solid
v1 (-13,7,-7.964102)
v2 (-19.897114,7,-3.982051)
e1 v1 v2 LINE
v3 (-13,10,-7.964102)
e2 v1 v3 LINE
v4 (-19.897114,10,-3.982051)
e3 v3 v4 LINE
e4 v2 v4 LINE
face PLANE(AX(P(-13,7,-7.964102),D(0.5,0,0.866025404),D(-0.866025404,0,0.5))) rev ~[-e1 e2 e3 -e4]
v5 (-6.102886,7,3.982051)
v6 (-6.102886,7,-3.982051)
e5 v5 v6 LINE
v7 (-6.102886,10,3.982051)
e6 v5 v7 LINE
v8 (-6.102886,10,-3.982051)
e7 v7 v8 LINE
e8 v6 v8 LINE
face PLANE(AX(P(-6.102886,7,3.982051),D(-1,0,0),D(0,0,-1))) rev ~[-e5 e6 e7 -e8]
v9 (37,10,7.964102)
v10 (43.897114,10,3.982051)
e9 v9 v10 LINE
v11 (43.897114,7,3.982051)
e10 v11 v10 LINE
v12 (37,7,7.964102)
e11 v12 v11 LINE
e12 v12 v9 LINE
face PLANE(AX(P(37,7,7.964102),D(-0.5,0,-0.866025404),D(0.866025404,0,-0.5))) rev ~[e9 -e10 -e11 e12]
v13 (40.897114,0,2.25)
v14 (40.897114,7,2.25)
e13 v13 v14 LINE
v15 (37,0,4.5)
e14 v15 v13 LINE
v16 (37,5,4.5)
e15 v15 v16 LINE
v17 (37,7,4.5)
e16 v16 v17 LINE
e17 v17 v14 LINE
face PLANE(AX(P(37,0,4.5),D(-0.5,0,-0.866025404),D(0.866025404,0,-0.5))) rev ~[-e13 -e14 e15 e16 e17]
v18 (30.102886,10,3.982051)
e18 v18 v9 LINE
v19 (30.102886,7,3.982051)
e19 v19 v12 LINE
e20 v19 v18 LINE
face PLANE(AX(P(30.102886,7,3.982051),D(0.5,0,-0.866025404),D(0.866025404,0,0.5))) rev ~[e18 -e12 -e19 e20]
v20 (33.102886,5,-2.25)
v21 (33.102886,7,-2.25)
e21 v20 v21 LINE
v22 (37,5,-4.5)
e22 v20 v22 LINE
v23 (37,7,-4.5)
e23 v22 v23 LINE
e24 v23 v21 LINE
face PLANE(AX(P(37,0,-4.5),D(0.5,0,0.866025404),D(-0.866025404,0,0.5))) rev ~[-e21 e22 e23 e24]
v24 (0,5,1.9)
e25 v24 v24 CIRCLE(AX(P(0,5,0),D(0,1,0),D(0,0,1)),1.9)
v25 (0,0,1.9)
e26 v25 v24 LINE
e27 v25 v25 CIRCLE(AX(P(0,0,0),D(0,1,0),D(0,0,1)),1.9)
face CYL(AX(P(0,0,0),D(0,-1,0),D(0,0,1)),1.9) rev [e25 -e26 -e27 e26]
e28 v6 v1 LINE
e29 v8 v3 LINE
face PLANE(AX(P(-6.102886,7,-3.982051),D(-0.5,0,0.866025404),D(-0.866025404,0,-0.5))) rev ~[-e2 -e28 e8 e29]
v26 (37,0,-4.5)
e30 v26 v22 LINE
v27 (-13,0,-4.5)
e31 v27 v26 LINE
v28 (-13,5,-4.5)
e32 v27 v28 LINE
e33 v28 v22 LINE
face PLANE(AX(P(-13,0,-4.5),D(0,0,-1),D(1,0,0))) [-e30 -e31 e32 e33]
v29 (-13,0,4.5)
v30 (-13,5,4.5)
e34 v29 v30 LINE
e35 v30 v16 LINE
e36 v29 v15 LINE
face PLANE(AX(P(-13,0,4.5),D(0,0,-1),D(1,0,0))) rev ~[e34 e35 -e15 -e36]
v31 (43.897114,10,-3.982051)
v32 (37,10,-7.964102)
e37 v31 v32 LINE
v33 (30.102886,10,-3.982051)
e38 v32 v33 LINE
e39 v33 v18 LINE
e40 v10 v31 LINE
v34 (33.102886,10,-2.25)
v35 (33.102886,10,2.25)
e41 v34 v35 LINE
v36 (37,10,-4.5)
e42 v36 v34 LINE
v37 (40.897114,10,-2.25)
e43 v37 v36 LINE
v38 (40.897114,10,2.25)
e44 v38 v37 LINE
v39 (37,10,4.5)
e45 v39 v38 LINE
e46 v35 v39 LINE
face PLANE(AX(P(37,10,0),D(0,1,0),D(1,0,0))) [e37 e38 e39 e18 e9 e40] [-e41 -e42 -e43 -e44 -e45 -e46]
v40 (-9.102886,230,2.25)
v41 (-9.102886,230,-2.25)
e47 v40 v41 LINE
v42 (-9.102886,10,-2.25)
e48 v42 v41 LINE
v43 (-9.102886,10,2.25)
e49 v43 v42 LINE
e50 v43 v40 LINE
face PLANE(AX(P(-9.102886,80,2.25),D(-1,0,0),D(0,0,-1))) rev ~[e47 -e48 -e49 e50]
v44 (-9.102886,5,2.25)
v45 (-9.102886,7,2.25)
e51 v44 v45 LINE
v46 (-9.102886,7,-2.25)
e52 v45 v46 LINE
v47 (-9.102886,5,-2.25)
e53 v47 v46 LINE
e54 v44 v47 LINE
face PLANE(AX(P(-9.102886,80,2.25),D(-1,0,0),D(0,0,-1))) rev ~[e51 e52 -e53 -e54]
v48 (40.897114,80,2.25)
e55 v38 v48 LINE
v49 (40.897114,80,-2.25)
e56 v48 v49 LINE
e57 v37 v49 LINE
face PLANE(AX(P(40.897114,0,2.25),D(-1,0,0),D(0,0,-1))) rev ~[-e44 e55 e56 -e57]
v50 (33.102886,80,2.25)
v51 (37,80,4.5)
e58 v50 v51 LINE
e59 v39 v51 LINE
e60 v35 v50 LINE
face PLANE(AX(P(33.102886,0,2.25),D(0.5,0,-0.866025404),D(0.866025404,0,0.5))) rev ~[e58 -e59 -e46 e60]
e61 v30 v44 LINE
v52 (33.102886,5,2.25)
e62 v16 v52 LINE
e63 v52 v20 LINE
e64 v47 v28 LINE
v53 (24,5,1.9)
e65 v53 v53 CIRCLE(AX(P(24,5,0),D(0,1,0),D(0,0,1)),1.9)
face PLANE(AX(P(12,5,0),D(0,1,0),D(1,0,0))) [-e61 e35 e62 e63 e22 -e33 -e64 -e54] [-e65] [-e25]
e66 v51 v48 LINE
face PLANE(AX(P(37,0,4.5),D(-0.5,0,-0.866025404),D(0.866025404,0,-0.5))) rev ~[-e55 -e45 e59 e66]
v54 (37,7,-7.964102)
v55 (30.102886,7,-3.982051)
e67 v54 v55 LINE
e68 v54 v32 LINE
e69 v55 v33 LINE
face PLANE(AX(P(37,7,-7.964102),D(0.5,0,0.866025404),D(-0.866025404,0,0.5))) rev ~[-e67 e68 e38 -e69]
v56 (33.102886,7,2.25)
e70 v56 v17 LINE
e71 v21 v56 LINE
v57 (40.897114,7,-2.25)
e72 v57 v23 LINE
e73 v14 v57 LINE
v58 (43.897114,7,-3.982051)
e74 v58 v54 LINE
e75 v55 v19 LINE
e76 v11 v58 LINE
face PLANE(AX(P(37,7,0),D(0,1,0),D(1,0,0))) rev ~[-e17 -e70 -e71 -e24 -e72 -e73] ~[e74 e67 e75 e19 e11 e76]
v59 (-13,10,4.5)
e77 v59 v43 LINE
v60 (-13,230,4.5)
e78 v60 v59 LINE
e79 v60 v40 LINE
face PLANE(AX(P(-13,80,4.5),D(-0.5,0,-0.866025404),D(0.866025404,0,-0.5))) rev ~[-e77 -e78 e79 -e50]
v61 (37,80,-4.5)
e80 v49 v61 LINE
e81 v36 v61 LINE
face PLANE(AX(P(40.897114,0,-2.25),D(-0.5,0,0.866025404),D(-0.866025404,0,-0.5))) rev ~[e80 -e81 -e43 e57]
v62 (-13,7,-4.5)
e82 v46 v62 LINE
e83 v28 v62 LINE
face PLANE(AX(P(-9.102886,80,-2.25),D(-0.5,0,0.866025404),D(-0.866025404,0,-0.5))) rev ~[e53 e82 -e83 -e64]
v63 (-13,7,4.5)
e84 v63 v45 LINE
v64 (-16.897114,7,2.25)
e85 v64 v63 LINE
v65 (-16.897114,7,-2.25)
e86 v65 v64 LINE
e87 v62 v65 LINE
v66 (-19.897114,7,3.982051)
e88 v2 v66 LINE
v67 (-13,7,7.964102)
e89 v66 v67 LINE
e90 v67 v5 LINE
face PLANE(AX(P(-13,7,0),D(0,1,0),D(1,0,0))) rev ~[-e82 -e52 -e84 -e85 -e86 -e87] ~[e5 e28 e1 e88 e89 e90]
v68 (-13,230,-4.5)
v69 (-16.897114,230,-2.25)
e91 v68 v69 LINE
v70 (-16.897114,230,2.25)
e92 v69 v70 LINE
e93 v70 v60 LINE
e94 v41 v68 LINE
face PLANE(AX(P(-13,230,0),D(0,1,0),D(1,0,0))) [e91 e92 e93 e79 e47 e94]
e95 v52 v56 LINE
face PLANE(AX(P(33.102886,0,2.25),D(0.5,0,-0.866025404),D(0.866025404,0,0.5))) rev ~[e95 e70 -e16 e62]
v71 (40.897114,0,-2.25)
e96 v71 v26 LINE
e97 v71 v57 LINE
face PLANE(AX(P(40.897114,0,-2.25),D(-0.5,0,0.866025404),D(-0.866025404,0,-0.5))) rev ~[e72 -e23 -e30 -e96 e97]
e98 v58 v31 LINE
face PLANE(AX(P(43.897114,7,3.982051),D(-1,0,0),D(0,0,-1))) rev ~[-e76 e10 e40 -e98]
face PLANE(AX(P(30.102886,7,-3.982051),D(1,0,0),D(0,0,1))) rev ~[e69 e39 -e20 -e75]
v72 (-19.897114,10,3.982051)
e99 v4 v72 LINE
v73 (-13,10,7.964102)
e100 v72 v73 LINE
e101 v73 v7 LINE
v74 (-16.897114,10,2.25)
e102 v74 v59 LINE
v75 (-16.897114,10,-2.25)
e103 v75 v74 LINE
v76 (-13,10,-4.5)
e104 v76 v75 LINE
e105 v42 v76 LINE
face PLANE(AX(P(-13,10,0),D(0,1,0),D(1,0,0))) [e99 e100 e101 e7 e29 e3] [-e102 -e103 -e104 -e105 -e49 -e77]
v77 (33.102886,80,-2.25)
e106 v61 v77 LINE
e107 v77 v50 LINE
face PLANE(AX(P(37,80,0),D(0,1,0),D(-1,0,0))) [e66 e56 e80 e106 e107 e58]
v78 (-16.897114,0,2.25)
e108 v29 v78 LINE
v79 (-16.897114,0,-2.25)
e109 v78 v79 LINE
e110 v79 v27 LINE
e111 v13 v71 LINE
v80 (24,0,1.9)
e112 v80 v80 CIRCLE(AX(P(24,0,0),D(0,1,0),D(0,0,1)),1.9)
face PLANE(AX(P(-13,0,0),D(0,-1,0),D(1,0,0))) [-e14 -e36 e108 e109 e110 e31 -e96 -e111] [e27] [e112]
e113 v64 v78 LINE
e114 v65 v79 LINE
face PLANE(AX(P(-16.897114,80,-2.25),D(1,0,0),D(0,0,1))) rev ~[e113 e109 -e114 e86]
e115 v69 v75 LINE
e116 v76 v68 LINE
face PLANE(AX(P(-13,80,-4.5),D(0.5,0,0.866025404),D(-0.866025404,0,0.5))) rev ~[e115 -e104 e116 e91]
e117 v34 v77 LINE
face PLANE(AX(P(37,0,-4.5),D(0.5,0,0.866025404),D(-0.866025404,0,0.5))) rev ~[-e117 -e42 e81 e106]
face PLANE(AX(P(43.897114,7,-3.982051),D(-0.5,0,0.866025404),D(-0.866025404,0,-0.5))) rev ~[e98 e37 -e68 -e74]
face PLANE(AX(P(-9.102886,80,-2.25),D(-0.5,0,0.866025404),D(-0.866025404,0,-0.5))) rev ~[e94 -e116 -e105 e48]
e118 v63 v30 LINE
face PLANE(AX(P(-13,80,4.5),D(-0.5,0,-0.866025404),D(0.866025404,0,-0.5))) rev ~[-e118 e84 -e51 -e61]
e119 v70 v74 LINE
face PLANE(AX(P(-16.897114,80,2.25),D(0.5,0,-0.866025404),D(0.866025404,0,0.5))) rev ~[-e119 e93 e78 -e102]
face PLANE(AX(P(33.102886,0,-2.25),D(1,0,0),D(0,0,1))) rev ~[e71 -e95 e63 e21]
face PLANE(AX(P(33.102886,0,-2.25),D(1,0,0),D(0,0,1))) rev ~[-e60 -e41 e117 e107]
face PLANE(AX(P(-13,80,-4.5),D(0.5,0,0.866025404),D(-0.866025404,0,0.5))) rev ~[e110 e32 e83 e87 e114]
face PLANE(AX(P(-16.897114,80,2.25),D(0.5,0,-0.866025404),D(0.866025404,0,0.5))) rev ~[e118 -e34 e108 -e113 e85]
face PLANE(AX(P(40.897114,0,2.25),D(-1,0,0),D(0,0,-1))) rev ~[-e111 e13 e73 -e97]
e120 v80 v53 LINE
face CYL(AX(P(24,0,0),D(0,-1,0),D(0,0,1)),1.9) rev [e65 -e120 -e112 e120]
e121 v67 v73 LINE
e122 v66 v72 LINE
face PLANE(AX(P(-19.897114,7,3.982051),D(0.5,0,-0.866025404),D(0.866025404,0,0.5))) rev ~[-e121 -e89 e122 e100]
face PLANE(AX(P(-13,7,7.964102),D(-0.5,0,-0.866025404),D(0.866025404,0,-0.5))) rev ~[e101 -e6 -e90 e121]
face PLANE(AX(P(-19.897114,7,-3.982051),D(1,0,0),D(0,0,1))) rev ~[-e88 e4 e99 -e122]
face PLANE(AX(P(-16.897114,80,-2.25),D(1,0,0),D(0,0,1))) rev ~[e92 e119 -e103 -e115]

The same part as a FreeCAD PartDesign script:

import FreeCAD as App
import Part
import Sketcher
Q = App.Units.Quantity

doc = App.newDocument("Part")
params = doc.addObject("Spreadsheet::Sheet", "Params")
for row, (alias, value) in enumerate([
    ("sketch1_diameter", "3.8 mm"),
    ("sketch1_width", "50 mm"),
    ("sketch1_height", "9 mm"),
    ("pad1_length", "5 mm"),
    ("sketch2_height", "4.5 mm"),
    ("pad2_length", "80 mm"),
    ("sketch3_height", "4.5 mm"),
    ("pad3_length", "150 mm"),
    ("sketch4_height", "4.5 mm"),
    ("sketch4_length", "4.5 mm"),
    ("pad4_length", "3 mm"),
], start=1):
    params.set(f"A{row}", alias)
    params.set(f"B{row}", "=" + value)
    params.setAlias(f"B{row}", alias)

body = doc.addObject("PartDesign::Body", "Body")

# Sketch on XZ plane
sketch1 = doc.addObject("Sketcher::SketchObject", "Sketch")
body.addObject(sketch1)
sketch1.AttachmentSupport = (doc.XZ_Plane, [""])
sketch1.MapMode = "FlatFace"
sketch1.addGeometry([
    Part.LineSegment(App.Vector(-13, -4.5, 0), App.Vector(-13, 4.5, 0)),  # 0
    Part.LineSegment(App.Vector(-13, 4.5, 0), App.Vector(37, 4.5, 0)),  # 1
    Part.LineSegment(App.Vector(37, 4.5, 0), App.Vector(37, -4.5, 0)),  # 2
    Part.LineSegment(App.Vector(37, -4.5, 0), App.Vector(-13, -4.5, 0)),  # 3
    Part.Circle(App.Vector(0, 0, 0), App.Vector(0, 0, 1), 1.9),  # 4
    Part.Circle(App.Vector(24, 0, 0), App.Vector(0, 0, 1), 1.9),  # 5
], False)
sketch1.addConstraint([
    Sketcher.Constraint("Coincident", 0, 2, 1, 1),
    Sketcher.Constraint("Coincident", 1, 2, 2, 1),
    Sketcher.Constraint("Coincident", 2, 2, 3, 1),
    Sketcher.Constraint("Coincident", 3, 2, 0, 1),
    Sketcher.Constraint("Vertical", 0),
    Sketcher.Constraint("Horizontal", 1),
    Sketcher.Constraint("Vertical", 2),
    Sketcher.Constraint("Horizontal", 3),
    Sketcher.Constraint("Coincident", 4, 3, -1, 1),
    Sketcher.Constraint("Equal", 4, 5),
    Sketcher.Constraint("PointOnObject", 5, 3, -1),
    Sketcher.Constraint("Diameter", 4, Q("3.8 mm")),
    Sketcher.Constraint("DistanceX", 1, 1, 1, 2, Q("50 mm")),
    Sketcher.Constraint("DistanceY", 0, 1, 0, 2, Q("9 mm")),
    Sketcher.Constraint("DistanceX", -1, 1, 5, 3, Q("24 mm")),
    Sketcher.Constraint("DistanceX", 0, 2, -1, 1, Q("13 mm")),
    Sketcher.Constraint("DistanceY", -1, 1, 0, 2, Q("4.5 mm")),
])
sketch1.setExpression("Constraints[11]", "Params.sketch1_diameter")
sketch1.setExpression("Constraints[12]", "Params.sketch1_width")
sketch1.setExpression("Constraints[13]", "Params.sketch1_height")
pad1 = doc.addObject("PartDesign::Pad", "Pad")
body.addObject(pad1)
pad1.Profile = sketch1
pad1.setExpression("Length", "Params.pad1_length")
pad1.Reversed = True

# Sketch on XZ plane
sketch2 = doc.addObject("Sketcher::SketchObject", "Sketch001")
body.addObject(sketch2)
sketch2.AttachmentSupport = (doc.XZ_Plane, [""])
sketch2.MapMode = "FlatFace"
sketch2.addGeometry([
    Part.LineSegment(App.Vector(-13, 4.5, 0), App.Vector(-16.897114, 2.25, 0)),  # 0
    Part.LineSegment(App.Vector(-16.897114, 2.25, 0), App.Vector(-16.897114, -2.25, 0)),  # 1
    Part.LineSegment(App.Vector(-16.897114, -2.25, 0), App.Vector(-13, -4.5, 0)),  # 2
    Part.LineSegment(App.Vector(-13, -4.5, 0), App.Vector(-9.102886, -2.25, 0)),  # 3
    Part.LineSegment(App.Vector(-9.102886, -2.25, 0), App.Vector(-9.102886, 2.25, 0)),  # 4
    Part.LineSegment(App.Vector(-9.102886, 2.25, 0), App.Vector(-13, 4.5, 0)),  # 5
    Part.LineSegment(App.Vector(37, 4.5, 0), App.Vector(33.102886, 2.25, 0)),  # 6
    Part.LineSegment(App.Vector(33.102886, 2.25, 0), App.Vector(33.102886, -2.25, 0)),  # 7
    Part.LineSegment(App.Vector(33.102886, -2.25, 0), App.Vector(37, -4.5, 0)),  # 8
    Part.LineSegment(App.Vector(37, -4.5, 0), App.Vector(40.897114, -2.25, 0)),  # 9
    Part.LineSegment(App.Vector(40.897114, -2.25, 0), App.Vector(40.897114, 2.25, 0)),  # 10
    Part.LineSegment(App.Vector(40.897114, 2.25, 0), App.Vector(37, 4.5, 0)),  # 11
], False)
sketch2.addConstraint([
    Sketcher.Constraint("Coincident", 0, 2, 1, 1),
    Sketcher.Constraint("Coincident", 1, 2, 2, 1),
    Sketcher.Constraint("Coincident", 2, 2, 3, 1),
    Sketcher.Constraint("Coincident", 3, 2, 4, 1),
    Sketcher.Constraint("Coincident", 4, 2, 5, 1),
    Sketcher.Constraint("Coincident", 5, 2, 0, 1),
    Sketcher.Constraint("Coincident", 6, 2, 7, 1),
    Sketcher.Constraint("Coincident", 7, 2, 8, 1),
    Sketcher.Constraint("Coincident", 8, 2, 9, 1),
    Sketcher.Constraint("Coincident", 9, 2, 10, 1),
    Sketcher.Constraint("Coincident", 10, 2, 11, 1),
    Sketcher.Constraint("Coincident", 11, 2, 6, 1),
    Sketcher.Constraint("Vertical", 1),
    Sketcher.Constraint("Vertical", 4),
    Sketcher.Constraint("Vertical", 7),
    Sketcher.Constraint("Vertical", 10),
    Sketcher.Constraint("Symmetric", 2, 2, 5, 2, -1),
    Sketcher.Constraint("Symmetric", 8, 2, 11, 2, -1),
    Sketcher.Constraint("Parallel", 0, 3),
    Sketcher.Constraint("Parallel", 2, 5),
    Sketcher.Constraint("Parallel", 3, 6),
    Sketcher.Constraint("Parallel", 5, 8),
    Sketcher.Constraint("Parallel", 6, 9),
    Sketcher.Constraint("Parallel", 8, 11),
    Sketcher.Constraint("Horizontal", 1, 2, 3, 2),
    Sketcher.Constraint("Horizontal", 0, 2, 4, 2),
    Sketcher.Constraint("Horizontal", 4, 2, 6, 2),
    Sketcher.Constraint("Horizontal", 2, 2, 8, 2),
    Sketcher.Constraint("Horizontal", 7, 2, 9, 2),
    Sketcher.Constraint("Angle", 0, Q("-150 deg")),
    Sketcher.Constraint("DistanceY", 1, 2, 1, 1, Q("4.5 mm")),
    Sketcher.Constraint("DistanceX", 2, 2, -1, 1, Q("13 mm")),
    Sketcher.Constraint("DistanceX", -1, 1, 8, 2, Q("37 mm")),
    Sketcher.Constraint("DistanceY", 2, 2, 5, 2, Q("9 mm")),
])
sketch2.setExpression("Constraints[30]", "Params.sketch2_height")
pad2 = doc.addObject("PartDesign::Pad", "Pad001")
body.addObject(pad2)
pad2.Profile = sketch2
pad2.setExpression("Length", "Params.pad2_length")
pad2.Reversed = True

# Sketch on XZ plane
sketch3 = doc.addObject("Sketcher::SketchObject", "Sketch002")
body.addObject(sketch3)
sketch3.AttachmentSupport = (doc.XZ_Plane, [""])
sketch3.MapMode = "FlatFace"
sketch3.AttachmentOffset = App.Placement(App.Vector(0, 0, -80), App.Rotation())
sketch3.addGeometry([
    Part.LineSegment(App.Vector(-13, 4.5, 0), App.Vector(-9.102886, 2.25, 0)),  # 0
    Part.LineSegment(App.Vector(-9.102886, 2.25, 0), App.Vector(-9.102886, -2.25, 0)),  # 1
    Part.LineSegment(App.Vector(-9.102886, -2.25, 0), App.Vector(-13, -4.5, 0)),  # 2
    Part.LineSegment(App.Vector(-13, -4.5, 0), App.Vector(-16.897114, -2.25, 0)),  # 3
    Part.LineSegment(App.Vector(-16.897114, -2.25, 0), App.Vector(-16.897114, 2.25, 0)),  # 4
    Part.LineSegment(App.Vector(-16.897114, 2.25, 0), App.Vector(-13, 4.5, 0)),  # 5
], False)
sketch3.addConstraint([
    Sketcher.Constraint("Coincident", 0, 2, 1, 1),
    Sketcher.Constraint("Coincident", 1, 2, 2, 1),
    Sketcher.Constraint("Coincident", 2, 2, 3, 1),
    Sketcher.Constraint("Coincident", 3, 2, 4, 1),
    Sketcher.Constraint("Coincident", 4, 2, 5, 1),
    Sketcher.Constraint("Coincident", 5, 2, 0, 1),
    Sketcher.Constraint("Vertical", 1),
    Sketcher.Constraint("Vertical", 4),
    Sketcher.Constraint("Symmetric", 2, 2, 5, 2, -1),
    Sketcher.Constraint("Parallel", 0, 3),
    Sketcher.Constraint("Parallel", 2, 5),
    Sketcher.Constraint("Horizontal", 1, 2, 3, 2),
    Sketcher.Constraint("Horizontal", 0, 2, 4, 2),
    Sketcher.Constraint("Angle", 0, Q("-30 deg")),
    Sketcher.Constraint("DistanceY", 1, 2, 1, 1, Q("4.5 mm")),
    Sketcher.Constraint("DistanceX", 2, 2, -1, 1, Q("13 mm")),
    Sketcher.Constraint("DistanceY", 2, 2, 5, 2, Q("9 mm")),
])
sketch3.setExpression("Constraints[14]", "Params.sketch3_height")
pad3 = doc.addObject("PartDesign::Pad", "Pad002")
body.addObject(pad3)
pad3.Profile = sketch3
pad3.setExpression("Length", "Params.pad3_length")
pad3.Reversed = True

# Sketch on XZ plane
sketch4 = doc.addObject("Sketcher::SketchObject", "Sketch003")
body.addObject(sketch4)
sketch4.AttachmentSupport = (doc.XZ_Plane, [""])
sketch4.MapMode = "FlatFace"
sketch4.AttachmentOffset = App.Placement(App.Vector(0, 0, -7), App.Rotation())
sketch4.addGeometry([
    Part.LineSegment(App.Vector(-19.897114, 3.982051, 0), App.Vector(-19.897114, -3.982051, 0)),  # 0
    Part.LineSegment(App.Vector(-19.897114, -3.982051, 0), App.Vector(-13, -7.964102, 0)),  # 1
    Part.LineSegment(App.Vector(-13, -7.964102, 0), App.Vector(-6.102886, -3.982051, 0)),  # 2
    Part.LineSegment(App.Vector(-6.102886, -3.982051, 0), App.Vector(-6.102886, 3.982051, 0)),  # 3
    Part.LineSegment(App.Vector(-6.102886, 3.982051, 0), App.Vector(-13, 7.964102, 0)),  # 4
    Part.LineSegment(App.Vector(-13, 7.964102, 0), App.Vector(-19.897114, 3.982051, 0)),  # 5
    Part.LineSegment(App.Vector(-16.897114, 2.25, 0), App.Vector(-13, 4.5, 0)),  # 6
    Part.LineSegment(App.Vector(-13, 4.5, 0), App.Vector(-9.102886, 2.25, 0)),  # 7
    Part.LineSegment(App.Vector(-9.102886, 2.25, 0), App.Vector(-9.102886, -2.25, 0)),  # 8
    Part.LineSegment(App.Vector(-9.102886, -2.25, 0), App.Vector(-13, -4.5, 0)),  # 9
    Part.LineSegment(App.Vector(-13, -4.5, 0), App.Vector(-16.897114, -2.25, 0)),  # 10
    Part.LineSegment(App.Vector(-16.897114, -2.25, 0), App.Vector(-16.897114, 2.25, 0)),  # 11
    Part.LineSegment(App.Vector(43.897114, -3.982051, 0), App.Vector(43.897114, 3.982051, 0)),  # 12
    Part.LineSegment(App.Vector(43.897114, 3.982051, 0), App.Vector(37, 7.964102, 0)),  # 13
    Part.LineSegment(App.Vector(37, 7.964102, 0), App.Vector(30.102886, 3.982051, 0)),  # 14
    Part.LineSegment(App.Vector(30.102886, 3.982051, 0), App.Vector(30.102886, -3.982051, 0)),  # 15
    Part.LineSegment(App.Vector(30.102886, -3.982051, 0), App.Vector(37, -7.964102, 0)),  # 16
    Part.LineSegment(App.Vector(37, -7.964102, 0), App.Vector(43.897114, -3.982051, 0)),  # 17
    Part.LineSegment(App.Vector(33.102886, -2.25, 0), App.Vector(33.102886, 2.25, 0)),  # 18
    Part.LineSegment(App.Vector(33.102886, 2.25, 0), App.Vector(37, 4.5, 0)),  # 19
    Part.LineSegment(App.Vector(37, 4.5, 0), App.Vector(40.897114, 2.25, 0)),  # 20
    Part.LineSegment(App.Vector(40.897114, 2.25, 0), App.Vector(40.897114, -2.25, 0)),  # 21
    Part.LineSegment(App.Vector(40.897114, -2.25, 0), App.Vector(37, -4.5, 0)),  # 22
    Part.LineSegment(App.Vector(37, -4.5, 0), App.Vector(33.102886, -2.25, 0)),  # 23
], False)
sketch4.addConstraint([
    Sketcher.Constraint("Coincident", 0, 2, 1, 1),
    Sketcher.Constraint("Coincident", 1, 2, 2, 1),
    Sketcher.Constraint("Coincident", 2, 2, 3, 1),
    Sketcher.Constraint("Coincident", 3, 2, 4, 1),
    Sketcher.Constraint("Coincident", 4, 2, 5, 1),
    Sketcher.Constraint("Coincident", 5, 2, 0, 1),
    Sketcher.Constraint("Coincident", 6, 2, 7, 1),
    Sketcher.Constraint("Coincident", 7, 2, 8, 1),
    Sketcher.Constraint("Coincident", 8, 2, 9, 1),
    Sketcher.Constraint("Coincident", 9, 2, 10, 1),
    Sketcher.Constraint("Coincident", 10, 2, 11, 1),
    Sketcher.Constraint("Coincident", 11, 2, 6, 1),
    Sketcher.Constraint("Coincident", 12, 2, 13, 1),
    Sketcher.Constraint("Coincident", 13, 2, 14, 1),
    Sketcher.Constraint("Coincident", 14, 2, 15, 1),
    Sketcher.Constraint("Coincident", 15, 2, 16, 1),
    Sketcher.Constraint("Coincident", 16, 2, 17, 1),
    Sketcher.Constraint("Coincident", 17, 2, 12, 1),
    Sketcher.Constraint("Coincident", 18, 2, 19, 1),
    Sketcher.Constraint("Coincident", 19, 2, 20, 1),
    Sketcher.Constraint("Coincident", 20, 2, 21, 1),
    Sketcher.Constraint("Coincident", 21, 2, 22, 1),
    Sketcher.Constraint("Coincident", 22, 2, 23, 1),
    Sketcher.Constraint("Coincident", 23, 2, 18, 1),
    Sketcher.Constraint("Vertical", 0),
    Sketcher.Constraint("Vertical", 3),
    Sketcher.Constraint("Vertical", 8),
    Sketcher.Constraint("Vertical", 11),
    Sketcher.Constraint("Vertical", 12),
    Sketcher.Constraint("Vertical", 15),
    Sketcher.Constraint("Vertical", 18),
    Sketcher.Constraint("Vertical", 21),
    Sketcher.Constraint("Symmetric", 1, 2, 4, 2, -1),
    Sketcher.Constraint("Symmetric", 6, 2, 9, 2, -1),
    Sketcher.Constraint("Symmetric", 13, 2, 16, 2, -1),
    Sketcher.Constraint("Symmetric", 19, 2, 22, 2, -1),
    Sketcher.Constraint("Parallel", 1, 4),
    Sketcher.Constraint("Parallel", 2, 5),
    Sketcher.Constraint("Parallel", 5, 6),
    Sketcher.Constraint("Parallel", 4, 7),
    Sketcher.Constraint("Parallel", 6, 9),
    Sketcher.Constraint("Parallel", 7, 10),
    Sketcher.Constraint("Parallel", 10, 13),
    Sketcher.Constraint("Parallel", 9, 14),
    Sketcher.Constraint("Parallel", 13, 16),
    Sketcher.Constraint("Parallel", 14, 17),
    Sketcher.Constraint("Parallel", 17, 19),
    Sketcher.Constraint("Parallel", 16, 20),
    Sketcher.Constraint("Parallel", 19, 22),
    Sketcher.Constraint("Parallel", 20, 23),
    Sketcher.Constraint("Horizontal", 0, 2, 2, 2),
    Sketcher.Constraint("Horizontal", 3, 2, 5, 2),
    Sketcher.Constraint("Horizontal", 8, 2, 10, 2),
    Sketcher.Constraint("Horizontal", 5, 2, 12, 2),
    Sketcher.Constraint("Horizontal", 4, 2, 13, 2),
    Sketcher.Constraint("Horizontal", 12, 2, 14, 2),
    Sketcher.Constraint("Horizontal", 11, 2, 18, 2),
    Sketcher.Constraint("Horizontal", 6, 2, 19, 2),
    Sketcher.Constraint("Horizontal", 18, 2, 20, 2),
    Sketcher.Constraint("Vertical", 4, 2, 6, 2),
    Sketcher.Constraint("Vertical", 16, 2, 19, 2),
    Sketcher.Constraint("Angle", 1, Q("-30 deg")),
    Sketcher.Constraint("DistanceY", 8, 2, 8, 1, Q("4.5 mm")),
    Sketcher.Constraint("DistanceX", 1, 2, -1, 1, Q("13 mm")),
    Sketcher.Constraint("DistanceX", -1, 1, 13, 2, Q("37 mm")),
    Sketcher.Constraint("DistanceX", 7, 2, 3, 2, Q("3 mm")),
    Sketcher.Constraint("Distance", 6, Q("4.5 mm")),
    Sketcher.Constraint("DistanceY", 0, 2, 0, 1, Q("7.964102 mm")),
])
sketch4.setExpression("Constraints[62]", "Params.sketch4_height")
sketch4.setExpression("Constraints[66]", "Params.sketch4_length")
pad4 = doc.addObject("PartDesign::Pad", "Pad003")
body.addObject(pad4)
pad4.Profile = sketch4
pad4.setExpression("Length", "Params.pad4_length")
pad4.Reversed = True

doc.recompute()
